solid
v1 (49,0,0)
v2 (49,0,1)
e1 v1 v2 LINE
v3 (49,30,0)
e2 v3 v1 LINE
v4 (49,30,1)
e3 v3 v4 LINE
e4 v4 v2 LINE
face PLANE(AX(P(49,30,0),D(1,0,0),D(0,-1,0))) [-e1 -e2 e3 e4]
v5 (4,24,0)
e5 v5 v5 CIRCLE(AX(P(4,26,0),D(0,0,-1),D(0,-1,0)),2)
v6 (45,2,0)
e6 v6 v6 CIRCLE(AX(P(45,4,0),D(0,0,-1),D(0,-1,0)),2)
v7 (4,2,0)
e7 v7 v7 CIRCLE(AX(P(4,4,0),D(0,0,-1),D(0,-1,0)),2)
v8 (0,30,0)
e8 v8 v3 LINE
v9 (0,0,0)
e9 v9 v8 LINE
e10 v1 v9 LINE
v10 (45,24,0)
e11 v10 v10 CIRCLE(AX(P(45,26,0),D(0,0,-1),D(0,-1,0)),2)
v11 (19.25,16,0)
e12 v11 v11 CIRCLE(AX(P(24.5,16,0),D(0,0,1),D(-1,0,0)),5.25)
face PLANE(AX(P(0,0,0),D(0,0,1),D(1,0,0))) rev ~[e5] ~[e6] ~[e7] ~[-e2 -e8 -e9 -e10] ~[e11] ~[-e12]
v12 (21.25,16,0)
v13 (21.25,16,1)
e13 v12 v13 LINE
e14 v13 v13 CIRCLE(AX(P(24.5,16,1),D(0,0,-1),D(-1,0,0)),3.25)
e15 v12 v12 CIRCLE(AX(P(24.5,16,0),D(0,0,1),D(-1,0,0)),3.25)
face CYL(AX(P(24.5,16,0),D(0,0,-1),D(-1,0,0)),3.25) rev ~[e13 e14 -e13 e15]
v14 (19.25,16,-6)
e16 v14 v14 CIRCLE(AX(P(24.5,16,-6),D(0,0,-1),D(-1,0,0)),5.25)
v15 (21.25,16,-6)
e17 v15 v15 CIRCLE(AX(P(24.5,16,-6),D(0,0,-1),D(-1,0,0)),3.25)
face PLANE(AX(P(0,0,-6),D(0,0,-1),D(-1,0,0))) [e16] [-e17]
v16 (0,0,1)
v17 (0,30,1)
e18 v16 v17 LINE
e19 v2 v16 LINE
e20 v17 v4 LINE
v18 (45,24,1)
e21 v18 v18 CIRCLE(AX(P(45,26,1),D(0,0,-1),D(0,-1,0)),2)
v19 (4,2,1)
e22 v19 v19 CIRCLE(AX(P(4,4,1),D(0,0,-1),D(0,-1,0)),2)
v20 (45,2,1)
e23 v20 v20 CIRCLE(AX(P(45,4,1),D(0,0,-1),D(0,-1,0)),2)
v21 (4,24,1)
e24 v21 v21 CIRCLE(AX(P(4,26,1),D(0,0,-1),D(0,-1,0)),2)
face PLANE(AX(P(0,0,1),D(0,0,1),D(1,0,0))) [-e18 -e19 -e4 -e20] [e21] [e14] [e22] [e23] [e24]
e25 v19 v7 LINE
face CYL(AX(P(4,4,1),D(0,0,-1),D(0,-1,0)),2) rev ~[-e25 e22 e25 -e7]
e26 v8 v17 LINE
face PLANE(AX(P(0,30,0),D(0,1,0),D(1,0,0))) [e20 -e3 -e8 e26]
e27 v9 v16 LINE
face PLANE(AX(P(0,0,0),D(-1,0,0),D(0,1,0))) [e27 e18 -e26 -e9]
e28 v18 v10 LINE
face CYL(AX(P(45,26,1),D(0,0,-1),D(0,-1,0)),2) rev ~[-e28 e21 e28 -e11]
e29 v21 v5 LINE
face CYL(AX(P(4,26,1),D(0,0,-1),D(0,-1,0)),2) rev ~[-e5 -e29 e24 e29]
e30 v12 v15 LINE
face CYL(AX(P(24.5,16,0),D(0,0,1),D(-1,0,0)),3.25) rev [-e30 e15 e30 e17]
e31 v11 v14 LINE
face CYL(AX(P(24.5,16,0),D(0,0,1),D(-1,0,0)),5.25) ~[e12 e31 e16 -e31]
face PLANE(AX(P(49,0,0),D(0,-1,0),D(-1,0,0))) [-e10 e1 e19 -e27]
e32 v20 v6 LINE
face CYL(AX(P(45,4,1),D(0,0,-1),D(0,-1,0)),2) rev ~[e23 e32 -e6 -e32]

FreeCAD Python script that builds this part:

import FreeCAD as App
import Part
import Sketcher

V = App.Vector
Q = App.Units.Quantity


def add_polygon(sketch, points):
    """Adds a closed chain of lines whose ends are joined by coincident constraints."""
    first, n = sketch.GeometryCount, len(points)
    for a, b in zip(points, points[1:] + points[:1]):
        sketch.addGeometry(Part.LineSegment(App.Vector(*a, 0), App.Vector(*b, 0)), False)
    for i in range(n):
        sketch.addConstraint(Sketcher.Constraint("Coincident", first + i, 2, first + (i + 1) % n, 1))

doc = App.newDocument("Part")
body = doc.addObject("PartDesign::Body", "Body")

sketch1 = body.newObject("Sketcher::SketchObject", "Sketch")
sketch1.AttachmentSupport = (doc.getObject("XY_Plane"), [""])
sketch1.MapMode = "FlatFace"
add_polygon(sketch1, [(49, 30), (0, 30), (0, 0), (49, 0)])
sketch1.addConstraint(Sketcher.Constraint("Horizontal", 0))
sketch1.addConstraint(Sketcher.Constraint("Vertical", 1))
sketch1.addConstraint(Sketcher.Constraint("Horizontal", 2))
sketch1.addConstraint(Sketcher.Constraint("Vertical", 3))
sketch1.addConstraint(Sketcher.Constraint("Coincident", 1, 2, -1, 1))
sketch1.addConstraint(Sketcher.Constraint("DistanceX", 0, 2, 0, 1, Q("49 mm")))
sketch1.addConstraint(Sketcher.Constraint("DistanceY", 1, 2, 1, 1, Q("30 mm")))
pad1 = body.newObject("PartDesign::Pad", "Pad")
pad1.Profile = sketch1
pad1.Length = 1

sketch2 = body.newObject("Sketcher::SketchObject", "Sketch001")
sketch2.AttachmentSupport = (doc.getObject("XY_Plane"), [""])
sketch2.MapMode = "FlatFace"
sketch2.addGeometry(Part.Circle(V(24.5, 16, 0), V(0, 0, 1), 5.25), False)
sketch2.addGeometry(Part.Circle(V(24.5, 16, 0), V(0, 0, 1), 3.25), False)
sketch2.addConstraint(Sketcher.Constraint("Coincident", 1, 3, 0, 3))
sketch2.addConstraint(Sketcher.Constraint("Diameter", 0, Q("10.5 mm")))
sketch2.addConstraint(Sketcher.Constraint("Diameter", 1, Q("6.5 mm")))
sketch2.addConstraint(Sketcher.Constraint("DistanceY", -1, 1, 0, 3, Q("16 mm")))
sketch2.addConstraint(Sketcher.Constraint("DistanceX", -1, 1, 0, 3, Q("24.5 mm")))
pad2 = body.newObject("PartDesign::Pad", "Pad001")
pad2.Profile = sketch2
pad2.Length = 6
pad2.Reversed = True

sketch3 = body.newObject("Sketcher::SketchObject", "Sketch002")
sketch3.AttachmentSupport = (doc.getObject("XY_Plane"), [""])
sketch3.MapMode = "FlatFace"
sketch3.addGeometry(Part.Circle(V(24.5, 16, 0), V(0, 0, 1), 3.25), False)
sketch3.addConstraint(Sketcher.Constraint("Diameter", 0, Q("6.5 mm")))
sketch3.addConstraint(Sketcher.Constraint("DistanceY", -1, 1, 0, 3, Q("16 mm")))
sketch3.addConstraint(Sketcher.Constraint("DistanceX", -1, 1, 0, 3, Q("24.5 mm")))
pocket1 = body.newObject("PartDesign::Pocket", "Pocket")
pocket1.Profile = sketch3
pocket1.Type = "ThroughAll"
pocket1.Reversed = True

sketch4 = body.newObject("Sketcher::SketchObject", "Sketch003")
sketch4.AttachmentSupport = (doc.getObject("XY_Plane"), [""])
sketch4.MapMode = "FlatFace"
sketch4.AttachmentOffset = App.Placement(V(0, 0, 1), App.Rotation())
sketch4.addGeometry(Part.Circle(V(4, 26, 0), V(0, 0, 1), 2), False)
sketch4.addGeometry(Part.Circle(V(45, 26, 0), V(0, 0, 1), 2), False)
sketch4.addGeometry(Part.Circle(V(4, 4, 0), V(0, 0, 1), 2), False)
sketch4.addGeometry(Part.Circle(V(45, 4, 0), V(0, 0, 1), 2), False)
sketch4.addConstraint(Sketcher.Constraint("Equal", 0, 1))
sketch4.addConstraint(Sketcher.Constraint("Equal", 1, 2))
sketch4.addConstraint(Sketcher.Constraint("Equal", 2, 3))
sketch4.addConstraint(Sketcher.Constraint("Horizontal", 0, 3, 1, 3))
sketch4.addConstraint(Sketcher.Constraint("Horizontal", 2, 3, 3, 3))
sketch4.addConstraint(Sketcher.Constraint("Vertical", 0, 3, 2, 3))
sketch4.addConstraint(Sketcher.Constraint("Vertical", 1, 3, 3, 3))
sketch4.addConstraint(Sketcher.Constraint("Diameter", 0, Q("4 mm")))
sketch4.addConstraint(Sketcher.Constraint("DistanceX", -1, 1, 0, 3, Q("4 mm")))
sketch4.addConstraint(Sketcher.Constraint("DistanceY", -1, 1, 0, 3, Q("26 mm")))
sketch4.addConstraint(Sketcher.Constraint("DistanceX", -1, 1, 1, 3, Q("45 mm")))
sketch4.addConstraint(Sketcher.Constraint("DistanceY", -1, 1, 2, 3, Q("4 mm")))
doc.recompute()
hole = body.newObject("PartDesign::Hole", "Hole")
hole.Profile = sketch4
hole.ThreadType = "None"
hole.Diameter = 4
hole.DepthType = "ThroughAll"

doc.recompute()
